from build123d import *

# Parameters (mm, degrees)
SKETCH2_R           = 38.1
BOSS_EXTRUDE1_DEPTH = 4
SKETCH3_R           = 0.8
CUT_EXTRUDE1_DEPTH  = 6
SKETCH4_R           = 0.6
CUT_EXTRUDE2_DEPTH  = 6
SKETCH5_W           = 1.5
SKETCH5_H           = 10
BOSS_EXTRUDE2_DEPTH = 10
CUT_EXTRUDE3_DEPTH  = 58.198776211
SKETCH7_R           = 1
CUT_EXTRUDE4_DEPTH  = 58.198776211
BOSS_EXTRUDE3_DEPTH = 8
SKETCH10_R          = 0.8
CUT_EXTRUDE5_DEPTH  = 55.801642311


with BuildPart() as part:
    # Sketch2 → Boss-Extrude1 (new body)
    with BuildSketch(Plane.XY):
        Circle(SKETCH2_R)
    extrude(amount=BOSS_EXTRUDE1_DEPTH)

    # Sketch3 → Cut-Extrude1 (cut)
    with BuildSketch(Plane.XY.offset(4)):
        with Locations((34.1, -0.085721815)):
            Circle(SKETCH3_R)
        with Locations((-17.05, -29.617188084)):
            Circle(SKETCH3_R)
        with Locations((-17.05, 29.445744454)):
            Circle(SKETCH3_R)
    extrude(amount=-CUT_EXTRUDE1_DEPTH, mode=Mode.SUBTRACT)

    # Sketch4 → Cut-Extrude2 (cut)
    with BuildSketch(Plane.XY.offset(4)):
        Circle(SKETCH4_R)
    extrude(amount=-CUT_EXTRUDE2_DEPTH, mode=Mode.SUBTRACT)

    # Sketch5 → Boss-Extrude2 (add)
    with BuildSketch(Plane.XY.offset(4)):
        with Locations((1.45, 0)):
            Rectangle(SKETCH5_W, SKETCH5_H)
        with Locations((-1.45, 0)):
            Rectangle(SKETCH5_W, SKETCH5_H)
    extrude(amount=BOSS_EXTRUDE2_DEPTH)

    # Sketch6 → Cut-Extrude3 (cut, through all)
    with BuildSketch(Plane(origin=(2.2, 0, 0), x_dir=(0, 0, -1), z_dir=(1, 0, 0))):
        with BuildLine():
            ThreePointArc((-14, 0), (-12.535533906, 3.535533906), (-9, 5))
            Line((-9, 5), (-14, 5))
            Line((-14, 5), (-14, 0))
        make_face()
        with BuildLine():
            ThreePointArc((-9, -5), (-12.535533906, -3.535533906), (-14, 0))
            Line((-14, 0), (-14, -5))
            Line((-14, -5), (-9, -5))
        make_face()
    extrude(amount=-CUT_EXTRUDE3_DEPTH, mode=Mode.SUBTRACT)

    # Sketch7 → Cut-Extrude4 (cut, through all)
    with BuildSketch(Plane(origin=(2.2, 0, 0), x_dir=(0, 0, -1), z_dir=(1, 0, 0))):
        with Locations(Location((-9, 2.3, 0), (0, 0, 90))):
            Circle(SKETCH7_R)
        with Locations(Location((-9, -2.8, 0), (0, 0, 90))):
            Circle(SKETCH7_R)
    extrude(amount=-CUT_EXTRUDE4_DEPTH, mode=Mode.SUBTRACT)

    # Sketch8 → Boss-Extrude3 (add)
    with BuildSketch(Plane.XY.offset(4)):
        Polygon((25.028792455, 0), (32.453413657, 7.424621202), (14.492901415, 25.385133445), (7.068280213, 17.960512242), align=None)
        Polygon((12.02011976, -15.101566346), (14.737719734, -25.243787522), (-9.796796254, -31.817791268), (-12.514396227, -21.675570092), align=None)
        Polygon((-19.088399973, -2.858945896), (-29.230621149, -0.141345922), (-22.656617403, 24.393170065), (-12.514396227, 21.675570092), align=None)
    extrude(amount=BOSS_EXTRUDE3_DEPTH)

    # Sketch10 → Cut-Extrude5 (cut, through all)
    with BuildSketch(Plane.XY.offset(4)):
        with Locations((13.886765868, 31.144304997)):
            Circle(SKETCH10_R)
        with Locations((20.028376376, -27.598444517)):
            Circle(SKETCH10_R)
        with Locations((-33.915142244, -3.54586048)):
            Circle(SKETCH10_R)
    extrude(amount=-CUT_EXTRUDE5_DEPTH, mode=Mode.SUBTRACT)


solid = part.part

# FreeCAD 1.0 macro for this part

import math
import FreeCAD as App
import Part
import Sketcher
from FreeCAD import Vector
Q = App.Units.Quantity


def add_polygon(sketch, points):
    """Adds a closed chain of lines whose ends are joined by coincident constraints."""
    first, n = sketch.GeometryCount, len(points)
    for a, b in zip(points, points[1:] + points[:1]):
        sketch.addGeometry(Part.LineSegment(App.Vector(*a, 0), App.Vector(*b, 0)), False)
    for i in range(n):
        sketch.addConstraint(Sketcher.Constraint("Coincident", first + i, 2, first + (i + 1) % n, 1))

doc = App.newDocument("Part")
body = doc.addObject("PartDesign::Body", "Body")

# Sketch on XY plane
sketch1 = doc.addObject("Sketcher::SketchObject", "Sketch")
body.addObject(sketch1)
sketch1.AttachmentSupport = (doc.XY_Plane, [""])
sketch1.MapMode = "FlatFace"
sketch1.addGeometry(Part.Circle(Vector(0, 0, 0), Vector(0, 0, 1), 38.1), False)
sketch1.addConstraint(Sketcher.Constraint("Coincident", 0, 3, -1, 1))
sketch1.addConstraint(Sketcher.Constraint("Diameter", 0, Q("76.2 mm")))
pad1 = doc.addObject("PartDesign::Pad", "Pad")
body.addObject(pad1)
pad1.Profile = sketch1
pad1.Length = 4

# Sketch on XY plane
sketch2 = doc.addObject("Sketcher::SketchObject", "Sketch001")
body.addObject(sketch2)
sketch2.AttachmentSupport = (doc.XY_Plane, [""])
sketch2.MapMode = "FlatFace"
sketch2.AttachmentOffset = App.Placement(Vector(0, 0, 4), App.Rotation())
sketch2.addGeometry(Part.Circle(Vector(34.1, -0.085722, 0), Vector(0, 0, 1), 0.8), False)
sketch2.addGeometry(Part.Circle(Vector(-17.05, -29.617188, 0), Vector(0, 0, 1), 0.8), False)
sketch2.addGeometry(Part.Circle(Vector(-17.05, 29.445744, 0), Vector(0, 0, 1), 0.8), False)
sketch2.addConstraint(Sketcher.Constraint("Equal", 0, 1))
sketch2.addConstraint(Sketcher.Constraint("Equal", 1, 2))
sketch2.addConstraint(Sketcher.Constraint("Vertical", 1, 3, 2, 3))
sketch2.addConstraint(Sketcher.Constraint("Diameter", 0, Q("1.6 mm")))
sketch2.addConstraint(Sketcher.Constraint("DistanceX", -1, 1, 0, 3, Q("34.1 mm")))
sketch2.addConstraint(Sketcher.Constraint("DistanceX", 1, 3, -1, 1, Q("17.05 mm")))
sketch2.addConstraint(Sketcher.Constraint("DistanceY", 0, 3, -1, 1, Q("0.085722 mm")))
sketch2.addConstraint(Sketcher.Constraint("DistanceY", 1, 3, -1, 1, Q("29.617188 mm")))
sketch2.addConstraint(Sketcher.Constraint("DistanceY", -1, 1, 2, 3, Q("29.445744 mm")))
pocket1 = doc.addObject("PartDesign::Pocket", "Pocket")
body.addObject(pocket1)
pocket1.Profile = sketch2
pocket1.Length = 6

# Sketch on XY plane
sketch3 = doc.addObject("Sketcher::SketchObject", "Sketch002")
body.addObject(sketch3)
sketch3.AttachmentSupport = (doc.XY_Plane, [""])
sketch3.MapMode = "FlatFace"
sketch3.AttachmentOffset = App.Placement(Vector(0, 0, 4), App.Rotation())
sketch3.addGeometry(Part.Circle(Vector(0, 0, 0), Vector(0, 0, 1), 0.6), False)
sketch3.addConstraint(Sketcher.Constraint("Coincident", 0, 3, -1, 1))
sketch3.addConstraint(Sketcher.Constraint("Diameter", 0, Q("1.2 mm")))
pocket2 = doc.addObject("PartDesign::Pocket", "Pocket001")
body.addObject(pocket2)
pocket2.Profile = sketch3
pocket2.Length = 6

# Sketch on XY plane
sketch4 = doc.addObject("Sketcher::SketchObject", "Sketch003")
body.addObject(sketch4)
sketch4.AttachmentSupport = (doc.XY_Plane, [""])
sketch4.MapMode = "FlatFace"
sketch4.AttachmentOffset = App.Placement(Vector(0, 0, 4), App.Rotation())
add_polygon(sketch4, [(0.7, 5), (0.7, -5), (2.2, -5), (2.2, 5)])  # lines 0-3
add_polygon(sketch4, [(-2.2, 5), (-2.2, -5), (-0.7, -5), (-0.7, 5)])  # lines 4-7
sketch4.addConstraint(Sketcher.Constraint("Vertical", 0))
sketch4.addConstraint(Sketcher.Constraint("Horizontal", 1))
sketch4.addConstraint(Sketcher.Constraint("Vertical", 2))
sketch4.addConstraint(Sketcher.Constraint("Horizontal", 3))
sketch4.addConstraint(Sketcher.Constraint("Vertical", 4))
sketch4.addConstraint(Sketcher.Constraint("Horizontal", 5))
sketch4.addConstraint(Sketcher.Constraint("Vertical", 6))
sketch4.addConstraint(Sketcher.Constraint("Horizontal", 7))
sketch4.addConstraint(Sketcher.Constraint("Symmetric", 2, 2, 4, 2, -1, 1))
sketch4.addConstraint(Sketcher.Constraint("Symmetric", 0, 2, 6, 2, -1, 1))
sketch4.addConstraint(Sketcher.Constraint("Horizontal", 1, 2, 4, 2))
sketch4.addConstraint(Sketcher.Constraint("DistanceY", 0, 2, 0, 1, Q("10 mm")))
sketch4.addConstraint(Sketcher.Constraint("DistanceX", 1, 1, 1, 2, Q("1.5 mm")))
sketch4.addConstraint(Sketcher.Constraint("DistanceX", -1, 1, 0, 2, Q("0.7 mm")))
pad2 = doc.addObject("PartDesign::Pad", "Pad001")
body.addObject(pad2)
pad2.Profile = sketch4
pad2.Length = 10

# Sketch on YZ plane
sketch5 = doc.addObject("Sketcher::SketchObject", "Sketch004")
body.addObject(sketch5)
sketch5.AttachmentSupport = (doc.YZ_Plane, [""])
sketch5.MapMode = "FlatFace"
sketch5.AttachmentOffset = App.Placement(Vector(0, 0, 2.2), App.Rotation())
sketch5.addGeometry(Part.ArcOfCircle(Part.Circle(Vector(0, 9, 0), Vector(0, 0, 1), 5), math.radians(0), math.radians(90)), False)
sketch5.addGeometry(Part.LineSegment(Vector(5, 9, 0), Vector(5, 14, 0)), False)
sketch5.addGeometry(Part.LineSegment(Vector(5, 14, 0), Vector(0, 14, 0)), False)
sketch5.addGeometry(Part.ArcOfCircle(Part.Circle(Vector(0, 9, 0), Vector(0, 0, 1), 5), math.radians(90), math.radians(180)), False)
sketch5.addGeometry(Part.LineSegment(Vector(0, 14, 0), Vector(-5, 14, 0)), False)
sketch5.addGeometry(Part.LineSegment(Vector(-5, 14, 0), Vector(-5, 9, 0)), False)
sketch5.addConstraint(Sketcher.Constraint("Tangent", 0, 1, 1, 1))
sketch5.addConstraint(Sketcher.Constraint("Coincident", 1, 2, 2, 1))
sketch5.addConstraint(Sketcher.Constraint("Tangent", 2, 2, 0, 2))
sketch5.addConstraint(Sketcher.Constraint("Tangent", 3, 1, 4, 1))
sketch5.addConstraint(Sketcher.Constraint("Coincident", 4, 2, 5, 1))
sketch5.addConstraint(Sketcher.Constraint("Tangent", 5, 2, 3, 2))
sketch5.addConstraint(Sketcher.Constraint("Vertical", 1))
sketch5.addConstraint(Sketcher.Constraint("Horizontal", 2))
sketch5.addConstraint(Sketcher.Constraint("Horizontal", 4))
sketch5.addConstraint(Sketcher.Constraint("Vertical", 5))
sketch5.addConstraint(Sketcher.Constraint("Coincident", 3, 3, 0, 3))
sketch5.addConstraint(Sketcher.Constraint("Equal", 0, 3))
sketch5.addConstraint(Sketcher.Constraint("PointOnObject", 0, 3, -2))
sketch5.addConstraint(Sketcher.Constraint("Radius", 0, Q("5 mm")))
sketch5.addConstraint(Sketcher.Constraint("DistanceY", -1, 1, 0, 3, Q("9 mm")))
pocket3 = doc.addObject("PartDesign::Pocket", "Pocket002")
body.addObject(pocket3)
pocket3.Profile = sketch5
pocket3.Type = "ThroughAll"

# Sketch on YZ plane
sketch6 = doc.addObject("Sketcher::SketchObject", "Sketch005")
body.addObject(sketch6)
sketch6.AttachmentSupport = (doc.YZ_Plane, [""])
sketch6.MapMode = "FlatFace"
sketch6.AttachmentOffset = App.Placement(Vector(0, 0, 2.2), App.Rotation())
sketch6.addGeometry(Part.Circle(Vector(2.3, 9, 0), Vector(0, 0, 1), 1), False)
sketch6.addGeometry(Part.Circle(Vector(-2.8, 9, 0), Vector(0, 0, 1), 1), False)
sketch6.addConstraint(Sketcher.Constraint("Equal", 0, 1))
sketch6.addConstraint(Sketcher.Constraint("Horizontal", 0, 3, 1, 3))
sketch6.addConstraint(Sketcher.Constraint("Diameter", 0, Q("2 mm")))
sketch6.addConstraint(Sketcher.Constraint("DistanceY", -1, 1, 0, 3, Q("9 mm")))
sketch6.addConstraint(Sketcher.Constraint("DistanceX", -1, 1, 0, 3, Q("2.3 mm")))
sketch6.addConstraint(Sketcher.Constraint("DistanceX", 1, 3, -1, 1, Q("2.8 mm")))
pocket4 = doc.addObject("PartDesign::Pocket", "Pocket003")
body.addObject(pocket4)
pocket4.Profile = sketch6
pocket4.Type = "ThroughAll"

# Sketch on XY plane
sketch7 = doc.addObject("Sketcher::SketchObject", "Sketch006")
body.addObject(sketch7)
sketch7.AttachmentSupport = (doc.XY_Plane, [""])
sketch7.MapMode = "FlatFace"
sketch7.AttachmentOffset = App.Placement(Vector(0, 0, 4), App.Rotation())
add_polygon(sketch7, [(25.028792, 0), (32.453414, 7.424621), (14.492901, 25.385133), (7.06828, 17.960512)])  # lines 0-3
add_polygon(sketch7, [(14.73772, -25.243788), (12.02012, -15.101566), (-12.514396, -21.67557), (-9.796796, -31.817791)])  # lines 4-7
add_polygon(sketch7, [(-29.230621, -0.141346), (-19.0884, -2.858946), (-12.514396, 21.67557), (-22.656617, 24.39317)])  # lines 8-11
sketch7.addConstraint(Sketcher.Constraint("Symmetric", 5, 2, 9, 2, -1))
sketch7.addConstraint(Sketcher.Constraint("PointOnObject", 3, 2, -1))
sketch7.addConstraint(Sketcher.Constraint("Perpendicular", 0, 1))
sketch7.addConstraint(Sketcher.Constraint("Perpendicular", 1, 2))
sketch7.addConstraint(Sketcher.Constraint("Perpendicular", 2, 3))
sketch7.addConstraint(Sketcher.Constraint("Perpendicular", 4, 5))
sketch7.addConstraint(Sketcher.Constraint("Perpendicular", 5, 6))
sketch7.addConstraint(Sketcher.Constraint("Perpendicular", 6, 7))
sketch7.addConstraint(Sketcher.Constraint("Perpendicular", 8, 9))
sketch7.addConstraint(Sketcher.Constraint("Perpendicular", 9, 10))
sketch7.addConstraint(Sketcher.Constraint("Perpendicular", 10, 11))
sketch7.addConstraint(Sketcher.Constraint("Equal", 2, 4))
sketch7.addConstraint(Sketcher.Constraint("Equal", 3, 5))
sketch7.addConstraint(Sketcher.Constraint("Equal", 6, 8))
sketch7.addConstraint(Sketcher.Constraint("Equal", 7, 9))
sketch7.addConstraint(Sketcher.Constraint("Angle", 0, Q("45 deg")))
sketch7.addConstraint(Sketcher.Constraint("Angle", 4, Q("105 deg")))
sketch7.addConstraint(Sketcher.Constraint("Angle", 8, Q("-15 deg")))
sketch7.addConstraint(Sketcher.Constraint("Distance", 0, Q("10.5 mm")))
sketch7.addConstraint(Sketcher.Constraint("Distance", 1, Q("25.4 mm")))
sketch7.addConstraint(Sketcher.Constraint("DistanceX", -1, 1, 1, 2, Q("14.492901 mm")))
sketch7.addConstraint(Sketcher.Constraint("DistanceX", 8, 2, -1, 1, Q("19.0884 mm")))
sketch7.addConstraint(Sketcher.Constraint("DistanceY", 4, 2, 1, 2, Q("40.4867 mm")))
pad3 = doc.addObject("PartDesign::Pad", "Pad002")
body.addObject(pad3)
pad3.Profile = sketch7
pad3.Length = 8

# Sketch on XY plane
sketch8 = doc.addObject("Sketcher::SketchObject", "Sketch007")
body.addObject(sketch8)
sketch8.AttachmentSupport = (doc.XY_Plane, [""])
sketch8.MapMode = "FlatFace"
sketch8.AttachmentOffset = App.Placement(Vector(0, 0, 4), App.Rotation())
sketch8.addGeometry(Part.Circle(Vector(13.886766, 31.144305, 0), Vector(0, 0, 1), 0.8), False)
sketch8.addGeometry(Part.Circle(Vector(20.028376, -27.598445, 0), Vector(0, 0, 1), 0.8), False)
sketch8.addGeometry(Part.Circle(Vector(-33.915142, -3.54586, 0), Vector(0, 0, 1), 0.8), False)
sketch8.addConstraint(Sketcher.Constraint("Equal", 0, 1))
sketch8.addConstraint(Sketcher.Constraint("Equal", 1, 2))
sketch8.addConstraint(Sketcher.Constraint("Diameter", 0, Q("1.6 mm")))
sketch8.addConstraint(Sketcher.Constraint("DistanceY", 2, 3, -1, 1, Q("3.54586 mm")))
sketch8.addConstraint(Sketcher.Constraint("DistanceX", 0, 3, 1, 3, Q("6.141611 mm")))
sketch8.addConstraint(Sketcher.Constraint("DistanceY", 1, 3, 0, 3, Q("58.74275 mm")))
sketch8.addConstraint(Sketcher.Constraint("DistanceX", 2, 3, 1, 3, Q("53.943519 mm")))
sketch8.addConstraint(Sketcher.Constraint("DistanceX", -1, 1, 0, 3, Q("13.886766 mm")))
sketch8.addConstraint(Sketcher.Constraint("DistanceY", -1, 1, 0, 3, Q("31.144305 mm")))
pocket5 = doc.addObject("PartDesign::Pocket", "Pocket004")
body.addObject(pocket5)
pocket5.Profile = sketch8
pocket5.Type = "ThroughAll"

doc.recompute()
